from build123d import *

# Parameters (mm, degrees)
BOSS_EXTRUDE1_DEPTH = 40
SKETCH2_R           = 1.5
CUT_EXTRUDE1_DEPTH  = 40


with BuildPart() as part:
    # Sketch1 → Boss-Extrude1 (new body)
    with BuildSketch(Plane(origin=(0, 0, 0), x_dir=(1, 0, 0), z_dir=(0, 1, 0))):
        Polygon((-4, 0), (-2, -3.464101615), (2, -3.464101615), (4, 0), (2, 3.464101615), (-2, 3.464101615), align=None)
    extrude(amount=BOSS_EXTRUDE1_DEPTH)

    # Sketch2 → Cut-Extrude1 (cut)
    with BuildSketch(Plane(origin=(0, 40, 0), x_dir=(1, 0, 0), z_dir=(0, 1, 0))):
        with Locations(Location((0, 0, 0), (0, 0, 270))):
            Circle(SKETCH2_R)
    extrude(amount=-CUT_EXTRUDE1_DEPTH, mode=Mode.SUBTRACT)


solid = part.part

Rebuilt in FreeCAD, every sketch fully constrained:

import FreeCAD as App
import Part
import Sketcher
from FreeCAD import Vector
Q = App.Units.Quantity

doc = App.newDocument("Part")
params = doc.addObject("Spreadsheet::Sheet", "Params")
for row, (alias, value) in enumerate([
    ("sketch1_width", "4 mm"),
    ("sketch1_length", "4 mm"),
    ("pad1_length", "40 mm"),
    ("sketch2_diameter", "3 mm"),
    ("pocket1_length", "40 mm"),
], start=1):
    params.set(f"A{row}", alias)
    params.set(f"B{row}", "=" + value)
    params.setAlias(f"B{row}", alias)

body = doc.addObject("PartDesign::Body", "Body")

# Sketch on XZ plane
sketch1 = body.newObject("Sketcher::SketchObject", "Sketch")
sketch1.AttachmentSupport = (doc.getObject("XZ_Plane"), [""])
sketch1.MapMode = "FlatFace"
sketch1.addGeometry([
    Part.LineSegment(Vector(-4, 0, 0), Vector(-2, 3.5, 0)),  # 0
    Part.LineSegment(Vector(-2, 3.5, 0), Vector(2, 3.5, 0)),  # 1
    Part.LineSegment(Vector(2, 3.5, 0), Vector(4, 0, 0)),  # 2
    Part.LineSegment(Vector(4, 0, 0), Vector(2, -3.5, 0)),  # 3
    Part.LineSegment(Vector(2, -3.5, 0), Vector(-2, -3.5, 0)),  # 4
    Part.LineSegment(Vector(-2, -3.5, 0), Vector(-4, 0, 0)),  # 5
], False)
sketch1.addConstraint([
    Sketcher.Constraint("Coincident", 0, 2, 1, 1),
    Sketcher.Constraint("Coincident", 1, 2, 2, 1),
    Sketcher.Constraint("Coincident", 2, 2, 3, 1),
    Sketcher.Constraint("Coincident", 3, 2, 4, 1),
    Sketcher.Constraint("Coincident", 4, 2, 5, 1),
    Sketcher.Constraint("Coincident", 5, 2, 0, 1),
    Sketcher.Constraint("Horizontal", 1),
    Sketcher.Constraint("Horizontal", 4),
    Sketcher.Constraint("Symmetric", 0, 2, 3, 2, -1, 1),
    Sketcher.Constraint("Symmetric", 2, 2, 5, 2, -1, 1),
    Sketcher.Constraint("PointOnObject", 2, 2, -1),
    Sketcher.Constraint("Parallel", 2, 5),
    Sketcher.Constraint("Vertical", 1, 2, 3, 2),
    Sketcher.Constraint("DistanceX", 1, 1, 1, 2, Q("4 mm")),
    Sketcher.Constraint("Angle", 0, Q("60 deg")),
    Sketcher.Constraint("Distance", 0, Q("4 mm")),
])
sketch1.setExpression("Constraints[13]", "Params.sketch1_width")
sketch1.setExpression("Constraints[15]", "Params.sketch1_length")
pad1 = body.newObject("PartDesign::Pad", "Pad")
pad1.Profile = sketch1
pad1.setExpression("Length", "Params.pad1_length")
pad1.Reversed = True

# Sketch on XZ plane
sketch2 = body.newObject("Sketcher::SketchObject", "Sketch001")
sketch2.AttachmentSupport = (doc.getObject("XZ_Plane"), [""])
sketch2.MapMode = "FlatFace"
sketch2.AttachmentOffset = App.Placement(Vector(0, 0, -40), App.Rotation())
sketch2.addGeometry(Part.Circle(Vector(0, 0, 0), Vector(0, 0, 1), 1.5), False)
sketch2.addConstraint([
    Sketcher.Constraint("Coincident", 0, 3, -1, 1),
    Sketcher.Constraint("Diameter", 0, Q("3 mm")),
])
sketch2.setExpression("Constraints[1]", "Params.sketch2_diameter")
pocket1 = body.newObject("PartDesign::Pocket", "Pocket")
pocket1.Profile = sketch2
pocket1.setExpression("Length", "Params.pocket1_length")
pocket1.Reversed = True

doc.recompute()
